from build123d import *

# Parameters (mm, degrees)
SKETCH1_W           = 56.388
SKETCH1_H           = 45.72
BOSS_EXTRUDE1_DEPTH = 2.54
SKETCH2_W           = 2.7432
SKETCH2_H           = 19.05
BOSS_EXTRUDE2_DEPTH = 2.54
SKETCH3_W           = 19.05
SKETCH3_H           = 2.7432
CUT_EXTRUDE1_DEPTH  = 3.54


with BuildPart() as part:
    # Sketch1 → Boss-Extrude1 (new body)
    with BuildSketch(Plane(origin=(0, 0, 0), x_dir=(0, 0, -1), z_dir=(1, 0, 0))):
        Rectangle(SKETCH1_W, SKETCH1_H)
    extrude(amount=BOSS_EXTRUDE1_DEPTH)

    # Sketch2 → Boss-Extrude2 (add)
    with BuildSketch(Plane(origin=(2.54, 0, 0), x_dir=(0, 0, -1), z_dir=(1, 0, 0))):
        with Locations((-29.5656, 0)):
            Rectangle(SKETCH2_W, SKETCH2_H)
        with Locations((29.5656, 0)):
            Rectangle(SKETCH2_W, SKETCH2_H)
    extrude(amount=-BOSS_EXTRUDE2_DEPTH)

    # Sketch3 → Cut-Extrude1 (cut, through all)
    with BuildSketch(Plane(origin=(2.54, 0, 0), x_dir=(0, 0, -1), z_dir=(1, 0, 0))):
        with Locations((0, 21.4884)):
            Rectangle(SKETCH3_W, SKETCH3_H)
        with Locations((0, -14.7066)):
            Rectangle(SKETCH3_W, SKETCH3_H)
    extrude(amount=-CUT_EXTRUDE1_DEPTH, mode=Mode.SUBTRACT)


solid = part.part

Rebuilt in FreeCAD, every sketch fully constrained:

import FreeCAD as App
import Part
import Sketcher
Q = App.Units.Quantity

doc = App.newDocument("Part")
body = doc.addObject("PartDesign::Body", "Body")

# Sketch on YZ plane
sketch1 = body.newObject("Sketcher::SketchObject", "Sketch")
sketch1.AttachmentSupport = (doc.getObject("YZ_Plane"), [""])
sketch1.MapMode = "FlatFace"
sketch1.addGeometry([
    Part.LineSegment(App.Vector(23, 28, 0), App.Vector(-23, 28, 0)),
    Part.LineSegment(App.Vector(-23, 28, 0), App.Vector(-23, -28, 0)),
    Part.LineSegment(App.Vector(-23, -28, 0), App.Vector(23, -28, 0)),
    Part.LineSegment(App.Vector(23, -28, 0), App.Vector(23, 28, 0)),
], False)
sketch1.addConstraint([
    Sketcher.Constraint("Coincident", 0, 2, 1, 1),
    Sketcher.Constraint("Coincident", 1, 2, 2, 1),
    Sketcher.Constraint("Coincident", 2, 2, 3, 1),
    Sketcher.Constraint("Coincident", 3, 2, 0, 1),
    Sketcher.Constraint("Horizontal", 0),
    Sketcher.Constraint("Vertical", 1),
    Sketcher.Constraint("Horizontal", 2),
    Sketcher.Constraint("Vertical", 3),
    Sketcher.Constraint("Symmetric", 0, 2, 2, 2, -1, 1),
    Sketcher.Constraint("DistanceX", 0, 2, 0, 1, Q("1.8 in")),
    Sketcher.Constraint("DistanceY", 1, 2, 1, 1, Q("2.22 in")),
])
pad1 = body.newObject("PartDesign::Pad", "Pad")
pad1.Profile = sketch1
pad1.Length = Q("0.1 in")

# Sketch on YZ plane
sketch2 = body.newObject("Sketcher::SketchObject", "Sketch001")
sketch2.AttachmentSupport = (doc.getObject("YZ_Plane"), [""])
sketch2.MapMode = "FlatFace"
sketch2.AttachmentOffset = App.Placement(App.Vector(0, 0, 0.1 * 25.4), App.Rotation())
sketch2.addGeometry([
    Part.LineSegment(App.Vector(9.5, 30.9, 0), App.Vector(-9.5, 30.9, 0)),  # 0
    Part.LineSegment(App.Vector(-9.5, 30.9, 0), App.Vector(-9.5, 28.2, 0)),  # 1
    Part.LineSegment(App.Vector(-9.5, 28.2, 0), App.Vector(9.5, 28.2, 0)),  # 2
    Part.LineSegment(App.Vector(9.5, 28.2, 0), App.Vector(9.5, 30.9, 0)),  # 3
    Part.LineSegment(App.Vector(9.5, -28.2, 0), App.Vector(-9.5, -28.2, 0)),  # 4
    Part.LineSegment(App.Vector(-9.5, -28.2, 0), App.Vector(-9.5, -30.9, 0)),  # 5
    Part.LineSegment(App.Vector(-9.5, -30.9, 0), App.Vector(9.5, -30.9, 0)),  # 6
    Part.LineSegment(App.Vector(9.5, -30.9, 0), App.Vector(9.5, -28.2, 0)),  # 7
], False)
sketch2.addConstraint([
    Sketcher.Constraint("Coincident", 0, 2, 1, 1),
    Sketcher.Constraint("Coincident", 1, 2, 2, 1),
    Sketcher.Constraint("Coincident", 2, 2, 3, 1),
    Sketcher.Constraint("Coincident", 3, 2, 0, 1),
    Sketcher.Constraint("Coincident", 4, 2, 5, 1),
    Sketcher.Constraint("Coincident", 5, 2, 6, 1),
    Sketcher.Constraint("Coincident", 6, 2, 7, 1),
    Sketcher.Constraint("Coincident", 7, 2, 4, 1),
    Sketcher.Constraint("Horizontal", 0),
    Sketcher.Constraint("Vertical", 1),
    Sketcher.Constraint("Horizontal", 2),
    Sketcher.Constraint("Vertical", 3),
    Sketcher.Constraint("Horizontal", 4),
    Sketcher.Constraint("Vertical", 5),
    Sketcher.Constraint("Horizontal", 6),
    Sketcher.Constraint("Vertical", 7),
    Sketcher.Constraint("Symmetric", 2, 2, 4, 2, -1, 1),
    Sketcher.Constraint("Symmetric", 0, 2, 6, 2, -1, 1),
    Sketcher.Constraint("Vertical", 1, 2, 4, 2),
    Sketcher.Constraint("DistanceX", 0, 2, 0, 1, Q("0.75 in")),
    Sketcher.Constraint("DistanceY", 1, 2, 1, 1, Q("0.108 in")),
    Sketcher.Constraint("DistanceY", -1, 1, 1, 2, Q("1.11 in")),
])
pad2 = body.newObject("PartDesign::Pad", "Pad001")
pad2.Profile = sketch2
pad2.Length = Q("0.1 in")
pad2.Reversed = True

# Sketch on YZ plane
sketch3 = body.newObject("Sketcher::SketchObject", "Sketch002")
sketch3.AttachmentSupport = (doc.getObject("YZ_Plane"), [""])
sketch3.MapMode = "FlatFace"
sketch3.AttachmentOffset = App.Placement(App.Vector(0, 0, 0.1 * 25.4), App.Rotation())
sketch3.addGeometry([
    Part.LineSegment(App.Vector(22.9, 9.5, 0), App.Vector(20.1, 9.5, 0)),  # 0
    Part.LineSegment(App.Vector(20.1, 9.5, 0), App.Vector(20.1, -9.5, 0)),  # 1
    Part.LineSegment(App.Vector(20.1, -9.5, 0), App.Vector(22.9, -9.5, 0)),  # 2
    Part.LineSegment(App.Vector(22.9, -9.5, 0), App.Vector(22.9, 9.5, 0)),  # 3
    Part.LineSegment(App.Vector(-13.3, 9.5, 0), App.Vector(-16.1, 9.5, 0)),  # 4
    Part.LineSegment(App.Vector(-16.1, 9.5, 0), App.Vector(-16.1, -9.5, 0)),  # 5
    Part.LineSegment(App.Vector(-16.1, -9.5, 0), App.Vector(-13.3, -9.5, 0)),  # 6
    Part.LineSegment(App.Vector(-13.3, -9.5, 0), App.Vector(-13.3, 9.5, 0)),  # 7
], False)
sketch3.addConstraint([
    Sketcher.Constraint("Coincident", 0, 2, 1, 1),
    Sketcher.Constraint("Coincident", 1, 2, 2, 1),
    Sketcher.Constraint("Coincident", 2, 2, 3, 1),
    Sketcher.Constraint("Coincident", 3, 2, 0, 1),
    Sketcher.Constraint("Coincident", 4, 2, 5, 1),
    Sketcher.Constraint("Coincident", 5, 2, 6, 1),
    Sketcher.Constraint("Coincident", 6, 2, 7, 1),
    Sketcher.Constraint("Coincident", 7, 2, 4, 1),
    Sketcher.Constraint("Horizontal", 0),
    Sketcher.Constraint("Vertical", 1),
    Sketcher.Constraint("Horizontal", 2),
    Sketcher.Constraint("Vertical", 3),
    Sketcher.Constraint("Horizontal", 4),
    Sketcher.Constraint("Vertical", 5),
    Sketcher.Constraint("Horizontal", 6),
    Sketcher.Constraint("Vertical", 7),
    Sketcher.Constraint("Horizontal", 3, 2, 4, 2),
    Sketcher.Constraint("Horizontal", 2, 2, 5, 2),
    Sketcher.Constraint("Equal", 2, 4),
    Sketcher.Constraint("DistanceY", 1, 2, 1, 1, Q("0.75 in")),
    Sketcher.Constraint("DistanceX", -1, 1, 2, 2, Q("0.9 in")),
    Sketcher.Constraint("DistanceX", 0, 2, 0, 1, Q("0.108 in")),
    Sketcher.Constraint("DistanceY", -1, 1, 0, 2, Q("0.375 in")),
    Sketcher.Constraint("DistanceX", 4, 2, -1, 1, Q("0.633 in")),
])
pocket1 = body.newObject("PartDesign::Pocket", "Pocket")
pocket1.Profile = sketch3
pocket1.Type = "ThroughAll"

doc.recompute()
